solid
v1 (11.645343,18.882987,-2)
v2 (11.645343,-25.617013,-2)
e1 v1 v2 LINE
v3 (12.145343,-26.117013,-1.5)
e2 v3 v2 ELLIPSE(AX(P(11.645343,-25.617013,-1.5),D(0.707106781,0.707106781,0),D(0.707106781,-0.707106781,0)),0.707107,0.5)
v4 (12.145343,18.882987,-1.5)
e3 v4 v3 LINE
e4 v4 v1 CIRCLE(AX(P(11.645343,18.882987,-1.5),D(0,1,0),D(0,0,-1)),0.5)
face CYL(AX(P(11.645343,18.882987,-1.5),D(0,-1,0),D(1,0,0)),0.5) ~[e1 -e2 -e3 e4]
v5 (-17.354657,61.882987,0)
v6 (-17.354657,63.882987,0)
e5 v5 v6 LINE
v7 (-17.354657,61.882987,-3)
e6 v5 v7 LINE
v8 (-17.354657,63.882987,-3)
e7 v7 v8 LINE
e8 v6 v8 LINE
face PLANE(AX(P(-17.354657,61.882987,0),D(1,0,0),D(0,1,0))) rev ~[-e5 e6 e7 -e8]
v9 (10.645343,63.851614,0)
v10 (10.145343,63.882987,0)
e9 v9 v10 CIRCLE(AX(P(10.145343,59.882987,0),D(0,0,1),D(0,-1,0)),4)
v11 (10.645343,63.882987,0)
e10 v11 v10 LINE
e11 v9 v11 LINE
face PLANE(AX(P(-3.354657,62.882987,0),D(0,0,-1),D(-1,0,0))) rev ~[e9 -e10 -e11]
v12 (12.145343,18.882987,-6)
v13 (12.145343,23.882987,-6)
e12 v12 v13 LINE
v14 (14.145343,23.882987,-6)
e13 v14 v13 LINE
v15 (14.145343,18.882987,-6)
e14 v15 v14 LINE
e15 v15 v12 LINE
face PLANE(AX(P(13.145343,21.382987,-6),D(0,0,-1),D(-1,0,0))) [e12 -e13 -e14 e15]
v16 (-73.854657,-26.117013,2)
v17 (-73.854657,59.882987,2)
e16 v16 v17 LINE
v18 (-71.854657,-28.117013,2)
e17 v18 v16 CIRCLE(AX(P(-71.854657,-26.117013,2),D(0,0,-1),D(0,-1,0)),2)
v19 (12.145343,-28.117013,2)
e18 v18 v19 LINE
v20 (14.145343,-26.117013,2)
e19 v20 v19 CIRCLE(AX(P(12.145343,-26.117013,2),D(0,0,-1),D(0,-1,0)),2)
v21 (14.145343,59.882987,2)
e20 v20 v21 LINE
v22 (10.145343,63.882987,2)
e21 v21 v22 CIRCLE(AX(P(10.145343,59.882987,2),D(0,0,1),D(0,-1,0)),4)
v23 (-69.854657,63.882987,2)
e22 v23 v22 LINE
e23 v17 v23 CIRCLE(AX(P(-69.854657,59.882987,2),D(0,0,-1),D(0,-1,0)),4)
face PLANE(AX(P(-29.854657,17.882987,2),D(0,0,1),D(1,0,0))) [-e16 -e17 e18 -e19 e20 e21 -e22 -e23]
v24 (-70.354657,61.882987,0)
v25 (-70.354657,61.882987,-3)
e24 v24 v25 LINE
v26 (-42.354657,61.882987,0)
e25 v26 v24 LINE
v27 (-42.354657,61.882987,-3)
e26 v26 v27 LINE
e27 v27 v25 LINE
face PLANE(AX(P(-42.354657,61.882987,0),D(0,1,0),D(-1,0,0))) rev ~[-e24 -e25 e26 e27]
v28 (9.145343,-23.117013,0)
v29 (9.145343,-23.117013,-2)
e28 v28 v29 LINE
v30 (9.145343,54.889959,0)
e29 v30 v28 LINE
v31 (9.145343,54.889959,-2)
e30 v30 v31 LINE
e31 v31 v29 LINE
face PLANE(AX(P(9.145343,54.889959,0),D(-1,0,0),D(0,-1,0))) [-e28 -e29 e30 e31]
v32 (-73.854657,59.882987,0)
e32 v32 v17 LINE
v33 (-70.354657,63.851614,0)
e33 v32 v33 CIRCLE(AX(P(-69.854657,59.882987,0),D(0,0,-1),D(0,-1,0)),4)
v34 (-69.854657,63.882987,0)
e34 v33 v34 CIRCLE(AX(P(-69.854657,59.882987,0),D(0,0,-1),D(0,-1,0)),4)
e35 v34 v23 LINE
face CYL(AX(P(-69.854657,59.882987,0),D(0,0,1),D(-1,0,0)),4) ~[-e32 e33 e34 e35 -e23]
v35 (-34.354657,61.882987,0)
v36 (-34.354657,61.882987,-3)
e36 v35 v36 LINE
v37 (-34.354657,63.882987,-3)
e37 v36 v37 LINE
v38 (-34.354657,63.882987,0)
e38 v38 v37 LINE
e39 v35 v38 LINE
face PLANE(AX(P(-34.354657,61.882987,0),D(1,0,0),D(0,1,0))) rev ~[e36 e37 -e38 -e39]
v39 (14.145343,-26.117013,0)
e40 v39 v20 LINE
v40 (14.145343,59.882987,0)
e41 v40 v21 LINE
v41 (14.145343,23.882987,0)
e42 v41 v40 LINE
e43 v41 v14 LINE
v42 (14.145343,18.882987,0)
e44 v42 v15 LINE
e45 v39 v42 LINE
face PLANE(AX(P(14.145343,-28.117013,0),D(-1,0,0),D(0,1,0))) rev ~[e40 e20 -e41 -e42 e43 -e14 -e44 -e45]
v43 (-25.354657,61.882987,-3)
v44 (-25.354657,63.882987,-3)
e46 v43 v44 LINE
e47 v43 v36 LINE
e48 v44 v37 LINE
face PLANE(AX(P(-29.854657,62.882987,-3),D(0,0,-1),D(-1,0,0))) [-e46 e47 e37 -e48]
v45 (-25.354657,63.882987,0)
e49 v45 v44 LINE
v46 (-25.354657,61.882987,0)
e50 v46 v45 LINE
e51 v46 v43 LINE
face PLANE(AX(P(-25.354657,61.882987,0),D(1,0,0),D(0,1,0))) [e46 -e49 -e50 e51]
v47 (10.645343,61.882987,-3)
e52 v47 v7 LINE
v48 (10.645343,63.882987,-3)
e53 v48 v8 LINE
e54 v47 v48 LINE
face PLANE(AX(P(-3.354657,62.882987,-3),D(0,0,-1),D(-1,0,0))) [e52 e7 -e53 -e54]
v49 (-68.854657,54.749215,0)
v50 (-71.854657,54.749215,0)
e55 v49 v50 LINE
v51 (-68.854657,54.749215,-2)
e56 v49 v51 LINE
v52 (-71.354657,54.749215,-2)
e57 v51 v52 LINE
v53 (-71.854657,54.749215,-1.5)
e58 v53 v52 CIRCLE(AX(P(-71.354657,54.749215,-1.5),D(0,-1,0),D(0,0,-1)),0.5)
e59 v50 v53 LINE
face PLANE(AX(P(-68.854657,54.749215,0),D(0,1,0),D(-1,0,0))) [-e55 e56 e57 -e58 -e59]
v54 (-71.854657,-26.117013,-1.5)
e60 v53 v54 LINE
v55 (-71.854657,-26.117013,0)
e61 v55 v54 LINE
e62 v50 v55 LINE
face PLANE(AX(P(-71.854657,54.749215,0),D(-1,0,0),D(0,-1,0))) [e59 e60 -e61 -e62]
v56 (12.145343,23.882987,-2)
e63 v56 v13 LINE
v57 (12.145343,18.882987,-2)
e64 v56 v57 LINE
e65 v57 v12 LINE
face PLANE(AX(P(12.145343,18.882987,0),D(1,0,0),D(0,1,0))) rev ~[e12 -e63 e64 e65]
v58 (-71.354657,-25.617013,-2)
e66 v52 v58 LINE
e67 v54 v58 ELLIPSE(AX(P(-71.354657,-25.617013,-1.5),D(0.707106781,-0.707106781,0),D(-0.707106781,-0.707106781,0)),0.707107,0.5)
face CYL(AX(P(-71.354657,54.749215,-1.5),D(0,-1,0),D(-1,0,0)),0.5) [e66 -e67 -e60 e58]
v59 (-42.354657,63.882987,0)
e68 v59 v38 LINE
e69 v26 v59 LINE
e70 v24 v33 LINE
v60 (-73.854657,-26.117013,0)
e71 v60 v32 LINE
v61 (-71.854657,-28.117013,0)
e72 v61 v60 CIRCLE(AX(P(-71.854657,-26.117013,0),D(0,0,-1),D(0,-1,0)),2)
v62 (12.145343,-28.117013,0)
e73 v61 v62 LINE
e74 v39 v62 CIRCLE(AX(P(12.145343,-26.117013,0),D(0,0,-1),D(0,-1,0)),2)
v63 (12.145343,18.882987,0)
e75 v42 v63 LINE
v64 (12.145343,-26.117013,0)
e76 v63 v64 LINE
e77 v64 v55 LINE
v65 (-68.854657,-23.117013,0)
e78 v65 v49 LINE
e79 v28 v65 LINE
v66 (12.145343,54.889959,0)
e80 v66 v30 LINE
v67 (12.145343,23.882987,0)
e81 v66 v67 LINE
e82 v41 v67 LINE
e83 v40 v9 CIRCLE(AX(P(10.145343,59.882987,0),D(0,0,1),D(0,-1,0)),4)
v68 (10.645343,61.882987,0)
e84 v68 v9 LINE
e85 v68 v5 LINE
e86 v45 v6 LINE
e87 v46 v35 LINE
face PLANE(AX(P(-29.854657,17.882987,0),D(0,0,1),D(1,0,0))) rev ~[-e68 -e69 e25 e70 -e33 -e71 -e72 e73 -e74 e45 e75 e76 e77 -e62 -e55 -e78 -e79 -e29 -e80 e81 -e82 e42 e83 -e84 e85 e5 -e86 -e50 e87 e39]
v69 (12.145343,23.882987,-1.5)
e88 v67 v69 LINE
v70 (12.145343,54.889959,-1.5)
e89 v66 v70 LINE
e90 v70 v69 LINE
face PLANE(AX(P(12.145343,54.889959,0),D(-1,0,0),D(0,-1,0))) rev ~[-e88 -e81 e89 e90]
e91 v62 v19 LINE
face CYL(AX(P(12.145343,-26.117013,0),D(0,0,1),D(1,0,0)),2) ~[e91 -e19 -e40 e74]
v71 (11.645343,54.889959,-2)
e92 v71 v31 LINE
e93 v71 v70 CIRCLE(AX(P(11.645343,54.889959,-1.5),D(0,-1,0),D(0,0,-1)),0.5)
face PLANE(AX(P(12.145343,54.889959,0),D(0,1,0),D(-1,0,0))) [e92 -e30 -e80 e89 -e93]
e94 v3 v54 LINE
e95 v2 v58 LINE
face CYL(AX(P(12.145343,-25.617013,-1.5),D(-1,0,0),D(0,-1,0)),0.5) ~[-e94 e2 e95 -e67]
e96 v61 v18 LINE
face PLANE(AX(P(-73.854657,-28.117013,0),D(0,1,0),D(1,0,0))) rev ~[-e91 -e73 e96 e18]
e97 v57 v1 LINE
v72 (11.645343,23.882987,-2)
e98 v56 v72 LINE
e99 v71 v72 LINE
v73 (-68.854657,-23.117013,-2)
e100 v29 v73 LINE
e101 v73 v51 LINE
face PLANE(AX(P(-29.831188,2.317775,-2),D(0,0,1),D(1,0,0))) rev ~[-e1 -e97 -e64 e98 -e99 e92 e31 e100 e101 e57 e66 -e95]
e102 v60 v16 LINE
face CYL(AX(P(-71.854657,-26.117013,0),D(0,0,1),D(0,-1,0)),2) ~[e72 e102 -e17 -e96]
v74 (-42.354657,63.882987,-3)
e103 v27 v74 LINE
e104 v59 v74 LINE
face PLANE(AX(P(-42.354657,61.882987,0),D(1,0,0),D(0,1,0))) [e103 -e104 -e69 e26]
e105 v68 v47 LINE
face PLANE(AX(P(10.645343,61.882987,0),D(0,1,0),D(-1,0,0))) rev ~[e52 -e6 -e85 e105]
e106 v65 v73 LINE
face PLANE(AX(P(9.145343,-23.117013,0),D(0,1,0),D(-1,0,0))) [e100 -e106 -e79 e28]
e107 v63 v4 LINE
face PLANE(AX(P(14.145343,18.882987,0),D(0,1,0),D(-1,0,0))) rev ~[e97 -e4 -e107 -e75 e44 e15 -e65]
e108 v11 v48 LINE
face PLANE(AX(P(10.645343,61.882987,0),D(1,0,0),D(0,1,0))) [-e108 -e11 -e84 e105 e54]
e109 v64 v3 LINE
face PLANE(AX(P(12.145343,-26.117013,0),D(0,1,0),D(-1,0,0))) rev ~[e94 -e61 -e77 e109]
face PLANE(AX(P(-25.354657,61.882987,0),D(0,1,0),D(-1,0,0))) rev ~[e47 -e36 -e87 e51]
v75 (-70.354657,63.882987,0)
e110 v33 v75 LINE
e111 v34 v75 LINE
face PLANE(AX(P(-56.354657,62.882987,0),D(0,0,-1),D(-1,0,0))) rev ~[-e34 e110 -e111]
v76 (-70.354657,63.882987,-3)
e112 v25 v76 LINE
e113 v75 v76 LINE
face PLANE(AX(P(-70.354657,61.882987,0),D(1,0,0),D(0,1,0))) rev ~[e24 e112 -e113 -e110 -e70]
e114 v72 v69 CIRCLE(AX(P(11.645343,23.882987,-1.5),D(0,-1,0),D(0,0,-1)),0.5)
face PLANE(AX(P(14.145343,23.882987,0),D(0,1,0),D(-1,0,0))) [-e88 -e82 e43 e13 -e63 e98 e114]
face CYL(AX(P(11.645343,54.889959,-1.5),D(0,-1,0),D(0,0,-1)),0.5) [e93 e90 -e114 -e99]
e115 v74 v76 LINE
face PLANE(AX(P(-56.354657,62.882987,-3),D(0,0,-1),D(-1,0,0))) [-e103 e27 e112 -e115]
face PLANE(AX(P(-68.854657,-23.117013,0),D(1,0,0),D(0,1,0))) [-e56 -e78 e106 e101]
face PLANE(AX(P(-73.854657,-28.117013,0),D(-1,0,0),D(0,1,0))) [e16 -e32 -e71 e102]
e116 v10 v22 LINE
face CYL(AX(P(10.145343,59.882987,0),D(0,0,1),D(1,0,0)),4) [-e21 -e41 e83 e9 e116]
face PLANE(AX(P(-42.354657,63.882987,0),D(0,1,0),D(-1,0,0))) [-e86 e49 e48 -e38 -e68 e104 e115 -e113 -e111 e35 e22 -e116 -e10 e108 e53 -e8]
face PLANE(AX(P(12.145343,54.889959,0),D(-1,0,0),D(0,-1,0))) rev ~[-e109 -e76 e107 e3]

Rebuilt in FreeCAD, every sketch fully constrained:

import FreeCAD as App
import Part
import Sketcher

V = App.Vector
Q = App.Units.Quantity


def edges_at(feature, points):
    """Names of the edges that pass closest to the given points."""
    edges = feature.Shape.Edges
    near = lambda p: min(range(len(edges)), key=lambda i: edges[i].distToShape(Part.Vertex(*p))[0])
    return sorted({f"Edge{near(p) + 1}" for p in points})


def add_polygon(sketch, points):
    """Adds a closed chain of lines whose ends are joined by coincident constraints."""
    first, n = sketch.GeometryCount, len(points)
    for a, b in zip(points, points[1:] + points[:1]):
        sketch.addGeometry(Part.LineSegment(App.Vector(*a, 0), App.Vector(*b, 0)), False)
    for i in range(n):
        sketch.addConstraint(Sketcher.Constraint("Coincident", first + i, 2, first + (i + 1) % n, 1))

doc = App.newDocument("Part")
params = doc.addObject("Spreadsheet::Sheet", "Params")
for row, (alias, value) in enumerate([
    ("sketch1_width", "88 mm"),
    ("sketch1_height", "92 mm"),
    ("pad1_length", "2 mm"),
    ("fillet_radius", "4 mm"),
    ("sketch2_width", "28 mm"),
    ("sketch2_width2", "9 mm"),
    ("sketch2_height", "2 mm"),
    ("pad2_length", "3 mm"),
    ("sketch3_width", "2 mm"),
    ("sketch3_height", "5 mm"),
    ("pad3_length", "6 mm"),
    ("fillet2_radius", "2 mm"),
    ("sketch4_width", "84 mm"),
    ("sketch4_width2", "3 mm"),
    ("pad4_length", "2 mm"),
    ("fillet3_radius", "0.5 mm"),
], start=1):
    params.set(f"A{row}", alias)
    params.set(f"B{row}", "=" + value)
    params.setAlias(f"B{row}", alias)

body = doc.addObject("PartDesign::Body", "Body")

# Sketch on XY plane
sketch1 = doc.addObject("Sketcher::SketchObject", "Sketch")
body.addObject(sketch1)
sketch1.AttachmentSupport = (doc.XY_Plane, [""])
sketch1.MapMode = "FlatFace"
add_polygon(sketch1, [(-74, 64), (-74, -28), (14, -28), (14, 64)])  # lines 0-3
sketch1.addConstraint(Sketcher.Constraint("Vertical", 0))
sketch1.addConstraint(Sketcher.Constraint("Horizontal", 1))
sketch1.addConstraint(Sketcher.Constraint("Vertical", 2))
sketch1.addConstraint(Sketcher.Constraint("Horizontal", 3))
sketch1.addConstraint(Sketcher.Constraint("DistanceX", 1, 1, 1, 2, Q("88 mm")))
sketch1.addConstraint(Sketcher.Constraint("DistanceY", 0, 2, 0, 1, Q("92 mm")))
sketch1.addConstraint(Sketcher.Constraint("DistanceX", 0, 2, -1, 1, Q("73.854657 mm")))
sketch1.addConstraint(Sketcher.Constraint("DistanceY", 0, 2, -1, 1, Q("28.117013 mm")))
sketch1.setExpression("Constraints[8]", "Params.sketch1_width")
sketch1.setExpression("Constraints[9]", "Params.sketch1_height")
pad1 = doc.addObject("PartDesign::Pad", "Pad")
body.addObject(pad1)
pad1.Profile = sketch1
pad1.setExpression("Length", "Params.pad1_length")
doc.recompute()

fillet = doc.addObject("PartDesign::Fillet", "Fillet")
body.addObject(fillet)
fillet.Base = (pad1, edges_at(pad1, [(-73.855, 63.883, 1), (14.145, 63.883, 1)]))
fillet.setExpression("Radius", "Params.fillet_radius")

# Sketch on XY plane
sketch2 = doc.addObject("Sketcher::SketchObject", "Sketch001")
body.addObject(sketch2)
sketch2.AttachmentSupport = (doc.XY_Plane, [""])
sketch2.MapMode = "FlatFace"
add_polygon(sketch2, [(-42.4, 63.9), (-42.4, 61.9), (-70.4, 61.9), (-70.4, 63.9)])  # lines 0-3
add_polygon(sketch2, [(-25.4, 63.9), (-25.4, 61.9), (-34.4, 61.9), (-34.4, 63.9)])  # lines 4-7
add_polygon(sketch2, [(10.6, 63.9), (10.6, 61.9), (-17.4, 61.9), (-17.4, 63.9)])  # lines 8-11
sketch2.addConstraint(Sketcher.Constraint("Vertical", 0))
sketch2.addConstraint(Sketcher.Constraint("Horizontal", 1))
sketch2.addConstraint(Sketcher.Constraint("Vertical", 2))
sketch2.addConstraint(Sketcher.Constraint("Horizontal", 3))
sketch2.addConstraint(Sketcher.Constraint("Vertical", 4))
sketch2.addConstraint(Sketcher.Constraint("Horizontal", 5))
sketch2.addConstraint(Sketcher.Constraint("Vertical", 6))
sketch2.addConstraint(Sketcher.Constraint("Horizontal", 7))
sketch2.addConstraint(Sketcher.Constraint("Vertical", 8))
sketch2.addConstraint(Sketcher.Constraint("Horizontal", 9))
sketch2.addConstraint(Sketcher.Constraint("Vertical", 10))
sketch2.addConstraint(Sketcher.Constraint("Horizontal", 11))
sketch2.addConstraint(Sketcher.Constraint("Horizontal", 1, 2, 4, 2))
sketch2.addConstraint(Sketcher.Constraint("Horizontal", 3, 2, 6, 2))
sketch2.addConstraint(Sketcher.Constraint("Horizontal", 5, 2, 8, 2))
sketch2.addConstraint(Sketcher.Constraint("Horizontal", 7, 2, 10, 2))
sketch2.addConstraint(Sketcher.Constraint("Equal", 3, 9))
sketch2.addConstraint(Sketcher.Constraint("DistanceX", 1, 2, 1, 1, Q("28 mm")))
sketch2.addConstraint(Sketcher.Constraint("DistanceX", 5, 2, 5, 1, Q("9 mm")))
sketch2.addConstraint(Sketcher.Constraint("DistanceY", 0, 2, 0, 1, Q("2 mm")))
sketch2.addConstraint(Sketcher.Constraint("DistanceX", 0, 2, 4, 2, Q("17 mm")))
sketch2.addConstraint(Sketcher.Constraint("DistanceX", 4, 2, 8, 2, Q("36 mm")))
sketch2.addConstraint(Sketcher.Constraint("DistanceX", 0, 2, -1, 1, Q("42.354657 mm")))
sketch2.addConstraint(Sketcher.Constraint("DistanceY", -1, 1, 0, 2, Q("61.882987 mm")))
sketch2.setExpression("Constraints[29]", "Params.sketch2_width")
sketch2.setExpression("Constraints[30]", "Params.sketch2_width2")
sketch2.setExpression("Constraints[31]", "Params.sketch2_height")
pad2 = doc.addObject("PartDesign::Pad", "Pad001")
body.addObject(pad2)
pad2.Profile = sketch2
pad2.setExpression("Length", "Params.pad2_length")
pad2.Reversed = True

# Sketch on XY plane
sketch3 = doc.addObject("Sketcher::SketchObject", "Sketch002")
body.addObject(sketch3)
sketch3.AttachmentSupport = (doc.XY_Plane, [""])
sketch3.MapMode = "FlatFace"
add_polygon(sketch3, [(14.1, 23.9), (14.1, 18.9), (12.1, 18.9), (12.1, 23.9)])  # lines 0-3
sketch3.addConstraint(Sketcher.Constraint("Vertical", 0))
sketch3.addConstraint(Sketcher.Constraint("Horizontal", 1))
sketch3.addConstraint(Sketcher.Constraint("Vertical", 2))
sketch3.addConstraint(Sketcher.Constraint("Horizontal", 3))
sketch3.addConstraint(Sketcher.Constraint("DistanceX", 1, 2, 1, 1, Q("2 mm")))
sketch3.addConstraint(Sketcher.Constraint("DistanceY", 0, 2, 0, 1, Q("5 mm")))
sketch3.addConstraint(Sketcher.Constraint("DistanceX", -1, 1, 0, 2, Q("14.145343 mm")))
sketch3.addConstraint(Sketcher.Constraint("DistanceY", -1, 1, 0, 2, Q("18.882987 mm")))
sketch3.setExpression("Constraints[8]", "Params.sketch3_width")
sketch3.setExpression("Constraints[9]", "Params.sketch3_height")
pad3 = doc.addObject("PartDesign::Pad", "Pad002")
body.addObject(pad3)
pad3.Profile = sketch3
pad3.setExpression("Length", "Params.pad3_length")
pad3.Reversed = True
doc.recompute()

fillet2 = doc.addObject("PartDesign::Fillet", "Fillet001")
body.addObject(fillet2)
fillet2.Base = (pad3, edges_at(pad3, [(14.145, -28.117, 1), (-73.855, -28.117, 1)]))
fillet2.setExpression("Radius", "Params.fillet2_radius")

# Sketch on XY plane
sketch4 = doc.addObject("Sketcher::SketchObject", "Sketch003")
body.addObject(sketch4)
sketch4.AttachmentSupport = (doc.XY_Plane, [""])
sketch4.MapMode = "FlatFace"
add_polygon(sketch4, [(12.1, -26.1), (-71.9, -26.1), (-71.9, 54.7), (-68.9, 54.7), (-68.9, -23.1), (9.1, -23.1), (9.1, 54.9), (12.1, 54.9)])  # lines 0-7
sketch4.addConstraint(Sketcher.Constraint("Horizontal", 0))
sketch4.addConstraint(Sketcher.Constraint("Vertical", 1))
sketch4.addConstraint(Sketcher.Constraint("Horizontal", 2))
sketch4.addConstraint(Sketcher.Constraint("Vertical", 3))
sketch4.addConstraint(Sketcher.Constraint("Horizontal", 4))
sketch4.addConstraint(Sketcher.Constraint("Vertical", 5))
sketch4.addConstraint(Sketcher.Constraint("Horizontal", 6))
sketch4.addConstraint(Sketcher.Constraint("Vertical", 7))
sketch4.addConstraint(Sketcher.Constraint("Equal", 2, 6))
sketch4.addConstraint(Sketcher.Constraint("DistanceX", 0, 2, 0, 1, Q("84 mm")))
sketch4.addConstraint(Sketcher.Constraint("DistanceX", 2, 1, 2, 2, Q("3 mm")))
sketch4.addConstraint(Sketcher.Constraint("DistanceY", 0, 2, 3, 2, Q("3 mm")))
sketch4.addConstraint(Sketcher.Constraint("DistanceY", 1, 1, 1, 2, Q("80.866228 mm")))
sketch4.addConstraint(Sketcher.Constraint("DistanceY", 5, 1, 5, 2, Q("78.006972 mm")))
sketch4.addConstraint(Sketcher.Constraint("DistanceY", -1, 1, 5, 2, Q("54.889959 mm")))
sketch4.addConstraint(Sketcher.Constraint("DistanceX", 0, 2, -1, 1, Q("71.854657 mm")))
sketch4.setExpression("Constraints[17]", "Params.sketch4_width")
sketch4.setExpression("Constraints[18]", "Params.sketch4_width2")
pad4 = doc.addObject("PartDesign::Pad", "Pad003")
body.addObject(pad4)
pad4.Profile = sketch4
pad4.setExpression("Length", "Params.pad4_length")
pad4.Reversed = True
doc.recompute()

fillet3 = doc.addObject("PartDesign::Fillet", "Fillet002")
body.addObject(fillet3)
fillet3.Base = (pad4, edges_at(pad4, [
    (-71.855, 14.316, -2),
    (12.145, 39.386, -2),
    (12.145, -3.617, -2),
    (-29.855, -26.117, -2),
]))
fillet3.setExpression("Radius", "Params.fillet3_radius")

doc.recompute()
